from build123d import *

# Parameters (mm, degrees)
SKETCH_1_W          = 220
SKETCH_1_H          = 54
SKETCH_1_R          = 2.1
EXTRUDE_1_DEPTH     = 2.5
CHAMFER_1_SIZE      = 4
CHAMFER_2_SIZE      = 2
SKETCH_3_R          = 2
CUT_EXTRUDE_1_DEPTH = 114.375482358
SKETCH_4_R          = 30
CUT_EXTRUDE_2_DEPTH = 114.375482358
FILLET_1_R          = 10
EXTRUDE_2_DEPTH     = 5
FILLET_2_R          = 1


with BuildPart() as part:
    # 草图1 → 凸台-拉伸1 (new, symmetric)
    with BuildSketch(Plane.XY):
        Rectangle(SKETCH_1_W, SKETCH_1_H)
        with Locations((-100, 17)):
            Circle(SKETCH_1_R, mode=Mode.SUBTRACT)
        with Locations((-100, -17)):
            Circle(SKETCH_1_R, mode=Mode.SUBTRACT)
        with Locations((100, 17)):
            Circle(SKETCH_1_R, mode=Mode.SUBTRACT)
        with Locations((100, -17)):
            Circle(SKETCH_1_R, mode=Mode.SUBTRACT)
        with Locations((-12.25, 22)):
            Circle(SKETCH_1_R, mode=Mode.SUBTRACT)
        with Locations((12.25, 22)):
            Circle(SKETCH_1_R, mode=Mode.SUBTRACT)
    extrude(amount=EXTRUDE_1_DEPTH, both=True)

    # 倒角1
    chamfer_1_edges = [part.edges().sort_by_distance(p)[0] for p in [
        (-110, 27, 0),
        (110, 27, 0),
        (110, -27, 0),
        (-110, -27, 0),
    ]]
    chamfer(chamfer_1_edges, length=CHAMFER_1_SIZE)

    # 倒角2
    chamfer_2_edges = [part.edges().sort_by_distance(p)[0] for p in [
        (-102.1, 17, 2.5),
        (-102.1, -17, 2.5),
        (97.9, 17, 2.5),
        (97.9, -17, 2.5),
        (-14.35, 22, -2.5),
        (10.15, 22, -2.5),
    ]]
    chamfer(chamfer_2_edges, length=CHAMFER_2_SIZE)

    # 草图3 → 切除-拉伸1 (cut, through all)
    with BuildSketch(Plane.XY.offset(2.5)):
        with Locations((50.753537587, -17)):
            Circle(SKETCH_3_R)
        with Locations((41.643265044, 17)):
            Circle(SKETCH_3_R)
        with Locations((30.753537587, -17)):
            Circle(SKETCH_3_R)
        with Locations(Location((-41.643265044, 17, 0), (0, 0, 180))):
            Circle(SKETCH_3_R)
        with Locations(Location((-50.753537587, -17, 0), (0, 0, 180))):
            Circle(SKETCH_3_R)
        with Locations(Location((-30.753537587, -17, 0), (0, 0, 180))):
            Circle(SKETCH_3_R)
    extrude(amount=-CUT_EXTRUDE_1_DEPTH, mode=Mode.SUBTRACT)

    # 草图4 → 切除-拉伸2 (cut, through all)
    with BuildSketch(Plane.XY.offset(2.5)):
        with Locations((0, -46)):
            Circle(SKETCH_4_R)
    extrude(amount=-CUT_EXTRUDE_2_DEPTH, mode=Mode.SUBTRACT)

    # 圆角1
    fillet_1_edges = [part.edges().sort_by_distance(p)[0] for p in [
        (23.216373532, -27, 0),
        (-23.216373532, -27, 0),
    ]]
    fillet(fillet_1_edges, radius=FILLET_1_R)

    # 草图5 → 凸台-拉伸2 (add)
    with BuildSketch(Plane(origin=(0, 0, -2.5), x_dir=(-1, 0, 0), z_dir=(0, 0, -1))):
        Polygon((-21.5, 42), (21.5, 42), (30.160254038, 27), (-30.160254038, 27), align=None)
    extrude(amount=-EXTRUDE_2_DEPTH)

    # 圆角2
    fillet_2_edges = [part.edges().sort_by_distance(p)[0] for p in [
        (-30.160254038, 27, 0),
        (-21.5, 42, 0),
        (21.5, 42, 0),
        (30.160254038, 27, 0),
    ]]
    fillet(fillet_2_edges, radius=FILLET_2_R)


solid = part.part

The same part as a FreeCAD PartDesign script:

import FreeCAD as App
import Part
import Sketcher
Q = App.Units.Quantity


def edges_at(feature, points):
    """Names of the edges that pass closest to the given points."""
    edges = feature.Shape.Edges
    near = lambda p: min(range(len(edges)), key=lambda i: edges[i].distToShape(Part.Vertex(*p))[0])
    return sorted({f"Edge{near(p) + 1}" for p in points})

doc = App.newDocument("Part")
params = doc.addObject("Spreadsheet::Sheet", "Params")
for row, (alias, value) in enumerate([
    ("sketch1_diameter", "4.2 mm"),
    ("sketch1_width", "220 mm"),
    ("sketch1_height", "54 mm"),
    ("pad1_length", "5 mm"),
    ("chamfer_size", "4 mm"),
    ("chamfer2_size", "2 mm"),
    ("sketch2_diameter", "4 mm"),
    ("sketch3_diameter", "60 mm"),
    ("fillet_radius", "10 mm"),
    ("sketch4_width", "43 mm"),
    ("pad2_length", "5 mm"),
    ("fillet2_radius", "1 mm"),
], start=1):
    params.set(f"A{row}", alias)
    params.set(f"B{row}", "=" + value)
    params.setAlias(f"B{row}", alias)

body = doc.addObject("PartDesign::Body", "Body")

sketch1 = doc.addObject("Sketcher::SketchObject", "Sketch")
body.addObject(sketch1)
sketch1.AttachmentSupport = (doc.XY_Plane, [""])
sketch1.MapMode = "FlatFace"
sketch1.addGeometry(Part.LineSegment(App.Vector(-110, 27, 0), App.Vector(-110, -27, 0)), False)
sketch1.addGeometry(Part.LineSegment(App.Vector(-110, -27, 0), App.Vector(110, -27, 0)), False)
sketch1.addGeometry(Part.LineSegment(App.Vector(110, -27, 0), App.Vector(110, 27, 0)), False)
sketch1.addGeometry(Part.LineSegment(App.Vector(110, 27, 0), App.Vector(-110, 27, 0)), False)
sketch1.addGeometry(Part.Circle(App.Vector(-100, -17, 0), App.Vector(0, 0, 1), 2.1), False)
sketch1.addGeometry(Part.Circle(App.Vector(100, -17, 0), App.Vector(0, 0, 1), 2.1), False)
sketch1.addGeometry(Part.Circle(App.Vector(-100, 17, 0), App.Vector(0, 0, 1), 2.1), False)
sketch1.addGeometry(Part.Circle(App.Vector(-12.25, 22, 0), App.Vector(0, 0, 1), 2.1), False)
sketch1.addGeometry(Part.Circle(App.Vector(12.25, 22, 0), App.Vector(0, 0, 1), 2.1), False)
sketch1.addGeometry(Part.Circle(App.Vector(100, 17, 0), App.Vector(0, 0, 1), 2.1), False)
sketch1.addConstraint(Sketcher.Constraint("Coincident", 0, 2, 1, 1))
sketch1.addConstraint(Sketcher.Constraint("Coincident", 1, 2, 2, 1))
sketch1.addConstraint(Sketcher.Constraint("Coincident", 2, 2, 3, 1))
sketch1.addConstraint(Sketcher.Constraint("Coincident", 3, 2, 0, 1))
sketch1.addConstraint(Sketcher.Constraint("Vertical", 0))
sketch1.addConstraint(Sketcher.Constraint("Horizontal", 1))
sketch1.addConstraint(Sketcher.Constraint("Vertical", 2))
sketch1.addConstraint(Sketcher.Constraint("Horizontal", 3))
sketch1.addConstraint(Sketcher.Constraint("Equal", 4, 5))
sketch1.addConstraint(Sketcher.Constraint("Equal", 5, 6))
sketch1.addConstraint(Sketcher.Constraint("Equal", 6, 7))
sketch1.addConstraint(Sketcher.Constraint("Equal", 7, 8))
sketch1.addConstraint(Sketcher.Constraint("Equal", 8, 9))
sketch1.addConstraint(Sketcher.Constraint("Symmetric", 5, 3, 6, 3, -1, 1))
sketch1.addConstraint(Sketcher.Constraint("Symmetric", 4, 3, 9, 3, -1, 1))
sketch1.addConstraint(Sketcher.Constraint("Symmetric", 0, 2, 2, 2, -1, 1))
sketch1.addConstraint(Sketcher.Constraint("Symmetric", 4, 3, 5, 3, -2))
sketch1.addConstraint(Sketcher.Constraint("Symmetric", 7, 3, 8, 3, -2))
sketch1.addConstraint(Sketcher.Constraint("Diameter", 4, Q("4.2 mm")))
sketch1.addConstraint(Sketcher.Constraint("DistanceX", 1, 1, 1, 2, Q("220 mm")))
sketch1.addConstraint(Sketcher.Constraint("DistanceY", 0, 2, 0, 1, Q("54 mm")))
sketch1.addConstraint(Sketcher.Constraint("DistanceX", 4, 3, -1, 1, Q("100 mm")))
sketch1.addConstraint(Sketcher.Constraint("DistanceY", 4, 3, -1, 1, Q("17 mm")))
sketch1.addConstraint(Sketcher.Constraint("DistanceY", -1, 1, 7, 3, Q("22 mm")))
sketch1.addConstraint(Sketcher.Constraint("DistanceX", 7, 3, 8, 3, Q("24.5 mm")))
sketch1.setExpression("Constraints[18]", "Params.sketch1_diameter")
sketch1.setExpression("Constraints[19]", "Params.sketch1_width")
sketch1.setExpression("Constraints[20]", "Params.sketch1_height")
pad1 = doc.addObject("PartDesign::Pad", "Pad")
body.addObject(pad1)
pad1.Profile = sketch1
pad1.setExpression("Length", "Params.pad1_length")
pad1.Midplane = True
doc.recompute()

chamfer = doc.addObject("PartDesign::Chamfer", "Chamfer")
body.addObject(chamfer)
chamfer.Base = (pad1, edges_at(pad1, [
    (-110, 27, 0),
    (110, 27, 0),
    (110, -27, 0),
    (-110, -27, 0),
]))
chamfer.setExpression("Size", "Params.chamfer_size")
doc.recompute()

chamfer2 = doc.addObject("PartDesign::Chamfer", "Chamfer001")
body.addObject(chamfer2)
chamfer2.Base = (chamfer, edges_at(chamfer, [
    (-102.1, 17, 2.5),
    (-102.1, -17, 2.5),
    (97.9, 17, 2.5),
    (97.9, -17, 2.5),
    (-14.35, 22, -2.5),
    (10.15, 22, -2.5),
]))
chamfer2.setExpression("Size", "Params.chamfer2_size")

sketch2 = doc.addObject("Sketcher::SketchObject", "Sketch001")
body.addObject(sketch2)
sketch2.AttachmentSupport = (doc.XY_Plane, [""])
sketch2.MapMode = "FlatFace"
sketch2.AttachmentOffset = App.Placement(App.Vector(0, 0, 2.5), App.Rotation())
sketch2.addGeometry(Part.Circle(App.Vector(50.753538, -17, 0), App.Vector(0, 0, 1), 2), False)
sketch2.addGeometry(Part.Circle(App.Vector(41.643265, 17, 0), App.Vector(0, 0, 1), 2), False)
sketch2.addGeometry(Part.Circle(App.Vector(30.753538, -17, 0), App.Vector(0, 0, 1), 2), False)
sketch2.addGeometry(Part.Circle(App.Vector(-41.643265, 17, 0), App.Vector(0, 0, 1), 2), False)
sketch2.addGeometry(Part.Circle(App.Vector(-50.753538, -17, 0), App.Vector(0, 0, 1), 2), False)
sketch2.addGeometry(Part.Circle(App.Vector(-30.753538, -17, 0), App.Vector(0, 0, 1), 2), False)
sketch2.addConstraint(Sketcher.Constraint("Equal", 0, 1))
sketch2.addConstraint(Sketcher.Constraint("Equal", 1, 2))
sketch2.addConstraint(Sketcher.Constraint("Equal", 2, 3))
sketch2.addConstraint(Sketcher.Constraint("Equal", 3, 4))
sketch2.addConstraint(Sketcher.Constraint("Equal", 4, 5))
sketch2.addConstraint(Sketcher.Constraint("Symmetric", 1, 3, 3, 3, -2))
sketch2.addConstraint(Sketcher.Constraint("Symmetric", 0, 3, 4, 3, -2))
sketch2.addConstraint(Sketcher.Constraint("Symmetric", 2, 3, 5, 3, -2))
sketch2.addConstraint(Sketcher.Constraint("Horizontal", 0, 3, 2, 3))
sketch2.addConstraint(Sketcher.Constraint("Diameter", 0, Q("4 mm")))
sketch2.addConstraint(Sketcher.Constraint("DistanceY", 0, 3, -1, 1, Q("17 mm")))
sketch2.addConstraint(Sketcher.Constraint("DistanceY", -1, 1, 1, 3, Q("17 mm")))
sketch2.addConstraint(Sketcher.Constraint("DistanceX", 2, 3, 0, 3, Q("20 mm")))
sketch2.addConstraint(Sketcher.Constraint("DistanceX", 3, 3, 1, 3, Q("83.28653 mm")))
sketch2.addConstraint(Sketcher.Constraint("DistanceX", -1, 1, 0, 3, Q("50.753538 mm")))
sketch2.setExpression("Constraints[9]", "Params.sketch2_diameter")
pocket1 = doc.addObject("PartDesign::Pocket", "Pocket")
body.addObject(pocket1)
pocket1.Profile = sketch2
pocket1.Type = "ThroughAll"

sketch3 = doc.addObject("Sketcher::SketchObject", "Sketch002")
body.addObject(sketch3)
sketch3.AttachmentSupport = (doc.XY_Plane, [""])
sketch3.MapMode = "FlatFace"
sketch3.AttachmentOffset = App.Placement(App.Vector(0, 0, 2.5), App.Rotation())
sketch3.addGeometry(Part.Circle(App.Vector(0, -46, 0), App.Vector(0, 0, 1), 30), False)
sketch3.addConstraint(Sketcher.Constraint("PointOnObject", 0, 3, -2))
sketch3.addConstraint(Sketcher.Constraint("Diameter", 0, Q("60 mm")))
sketch3.addConstraint(Sketcher.Constraint("DistanceY", 0, 3, -1, 1, Q("46 mm")))
sketch3.setExpression("Constraints[1]", "Params.sketch3_diameter")
pocket2 = doc.addObject("PartDesign::Pocket", "Pocket001")
body.addObject(pocket2)
pocket2.Profile = sketch3
pocket2.Type = "ThroughAll"
doc.recompute()

fillet = doc.addObject("PartDesign::Fillet", "Fillet")
body.addObject(fillet)
fillet.Base = (pocket2, edges_at(pocket2, [(23.216, -27, 0), (-23.216, -27, 0)]))
fillet.setExpression("Radius", "Params.fillet_radius")

sketch4 = doc.addObject("Sketcher::SketchObject", "Sketch003")
body.addObject(sketch4)
sketch4.AttachmentSupport = (doc.XY_Plane, [""])
sketch4.MapMode = "FlatFace"
sketch4.AttachmentOffset = App.Placement(App.Vector(0, 0, -2.5), App.Rotation())
sketch4.addGeometry(Part.LineSegment(App.Vector(-21.5, 42, 0), App.Vector(21.5, 42, 0)), False)
sketch4.addGeometry(Part.LineSegment(App.Vector(21.5, 42, 0), App.Vector(30.160254, 27, 0)), False)
sketch4.addGeometry(Part.LineSegment(App.Vector(30.160254, 27, 0), App.Vector(-30.160254, 27, 0)), False)
sketch4.addGeometry(Part.LineSegment(App.Vector(-30.160254, 27, 0), App.Vector(-21.5, 42, 0)), False)
sketch4.addConstraint(Sketcher.Constraint("Coincident", 0, 2, 1, 1))
sketch4.addConstraint(Sketcher.Constraint("Coincident", 1, 2, 2, 1))
sketch4.addConstraint(Sketcher.Constraint("Coincident", 2, 2, 3, 1))
sketch4.addConstraint(Sketcher.Constraint("Coincident", 3, 2, 0, 1))
sketch4.addConstraint(Sketcher.Constraint("Horizontal", 0))
sketch4.addConstraint(Sketcher.Constraint("Horizontal", 2))
sketch4.addConstraint(Sketcher.Constraint("Equal", 1, 3))
sketch4.addConstraint(Sketcher.Constraint("DistanceX", 0, 1, 0, 2, Q("43 mm")))
sketch4.addConstraint(Sketcher.Constraint("Angle", 1, Q("-60 deg")))
sketch4.addConstraint(Sketcher.Constraint("DistanceY", -1, 1, 0, 2, Q("42 mm")))
sketch4.addConstraint(Sketcher.Constraint("DistanceY", -1, 1, 1, 2, Q("27 mm")))
sketch4.addConstraint(Sketcher.Constraint("DistanceX", -1, 1, 0, 2, Q("21.5 mm")))
sketch4.setExpression("Constraints[7]", "Params.sketch4_width")
pad2 = doc.addObject("PartDesign::Pad", "Pad001")
body.addObject(pad2)
pad2.Profile = sketch4
pad2.setExpression("Length", "Params.pad2_length")
doc.recompute()

fillet2 = doc.addObject("PartDesign::Fillet", "Fillet001")
body.addObject(fillet2)
fillet2.Base = (pad2, edges_at(pad2, [
    (-30.16, 27, 0),
    (-21.5, 42, 0),
    (21.5, 42, 0),
    (30.16, 27, 0),
]))
fillet2.setExpression("Radius", "Params.fillet2_radius")

doc.recompute()
